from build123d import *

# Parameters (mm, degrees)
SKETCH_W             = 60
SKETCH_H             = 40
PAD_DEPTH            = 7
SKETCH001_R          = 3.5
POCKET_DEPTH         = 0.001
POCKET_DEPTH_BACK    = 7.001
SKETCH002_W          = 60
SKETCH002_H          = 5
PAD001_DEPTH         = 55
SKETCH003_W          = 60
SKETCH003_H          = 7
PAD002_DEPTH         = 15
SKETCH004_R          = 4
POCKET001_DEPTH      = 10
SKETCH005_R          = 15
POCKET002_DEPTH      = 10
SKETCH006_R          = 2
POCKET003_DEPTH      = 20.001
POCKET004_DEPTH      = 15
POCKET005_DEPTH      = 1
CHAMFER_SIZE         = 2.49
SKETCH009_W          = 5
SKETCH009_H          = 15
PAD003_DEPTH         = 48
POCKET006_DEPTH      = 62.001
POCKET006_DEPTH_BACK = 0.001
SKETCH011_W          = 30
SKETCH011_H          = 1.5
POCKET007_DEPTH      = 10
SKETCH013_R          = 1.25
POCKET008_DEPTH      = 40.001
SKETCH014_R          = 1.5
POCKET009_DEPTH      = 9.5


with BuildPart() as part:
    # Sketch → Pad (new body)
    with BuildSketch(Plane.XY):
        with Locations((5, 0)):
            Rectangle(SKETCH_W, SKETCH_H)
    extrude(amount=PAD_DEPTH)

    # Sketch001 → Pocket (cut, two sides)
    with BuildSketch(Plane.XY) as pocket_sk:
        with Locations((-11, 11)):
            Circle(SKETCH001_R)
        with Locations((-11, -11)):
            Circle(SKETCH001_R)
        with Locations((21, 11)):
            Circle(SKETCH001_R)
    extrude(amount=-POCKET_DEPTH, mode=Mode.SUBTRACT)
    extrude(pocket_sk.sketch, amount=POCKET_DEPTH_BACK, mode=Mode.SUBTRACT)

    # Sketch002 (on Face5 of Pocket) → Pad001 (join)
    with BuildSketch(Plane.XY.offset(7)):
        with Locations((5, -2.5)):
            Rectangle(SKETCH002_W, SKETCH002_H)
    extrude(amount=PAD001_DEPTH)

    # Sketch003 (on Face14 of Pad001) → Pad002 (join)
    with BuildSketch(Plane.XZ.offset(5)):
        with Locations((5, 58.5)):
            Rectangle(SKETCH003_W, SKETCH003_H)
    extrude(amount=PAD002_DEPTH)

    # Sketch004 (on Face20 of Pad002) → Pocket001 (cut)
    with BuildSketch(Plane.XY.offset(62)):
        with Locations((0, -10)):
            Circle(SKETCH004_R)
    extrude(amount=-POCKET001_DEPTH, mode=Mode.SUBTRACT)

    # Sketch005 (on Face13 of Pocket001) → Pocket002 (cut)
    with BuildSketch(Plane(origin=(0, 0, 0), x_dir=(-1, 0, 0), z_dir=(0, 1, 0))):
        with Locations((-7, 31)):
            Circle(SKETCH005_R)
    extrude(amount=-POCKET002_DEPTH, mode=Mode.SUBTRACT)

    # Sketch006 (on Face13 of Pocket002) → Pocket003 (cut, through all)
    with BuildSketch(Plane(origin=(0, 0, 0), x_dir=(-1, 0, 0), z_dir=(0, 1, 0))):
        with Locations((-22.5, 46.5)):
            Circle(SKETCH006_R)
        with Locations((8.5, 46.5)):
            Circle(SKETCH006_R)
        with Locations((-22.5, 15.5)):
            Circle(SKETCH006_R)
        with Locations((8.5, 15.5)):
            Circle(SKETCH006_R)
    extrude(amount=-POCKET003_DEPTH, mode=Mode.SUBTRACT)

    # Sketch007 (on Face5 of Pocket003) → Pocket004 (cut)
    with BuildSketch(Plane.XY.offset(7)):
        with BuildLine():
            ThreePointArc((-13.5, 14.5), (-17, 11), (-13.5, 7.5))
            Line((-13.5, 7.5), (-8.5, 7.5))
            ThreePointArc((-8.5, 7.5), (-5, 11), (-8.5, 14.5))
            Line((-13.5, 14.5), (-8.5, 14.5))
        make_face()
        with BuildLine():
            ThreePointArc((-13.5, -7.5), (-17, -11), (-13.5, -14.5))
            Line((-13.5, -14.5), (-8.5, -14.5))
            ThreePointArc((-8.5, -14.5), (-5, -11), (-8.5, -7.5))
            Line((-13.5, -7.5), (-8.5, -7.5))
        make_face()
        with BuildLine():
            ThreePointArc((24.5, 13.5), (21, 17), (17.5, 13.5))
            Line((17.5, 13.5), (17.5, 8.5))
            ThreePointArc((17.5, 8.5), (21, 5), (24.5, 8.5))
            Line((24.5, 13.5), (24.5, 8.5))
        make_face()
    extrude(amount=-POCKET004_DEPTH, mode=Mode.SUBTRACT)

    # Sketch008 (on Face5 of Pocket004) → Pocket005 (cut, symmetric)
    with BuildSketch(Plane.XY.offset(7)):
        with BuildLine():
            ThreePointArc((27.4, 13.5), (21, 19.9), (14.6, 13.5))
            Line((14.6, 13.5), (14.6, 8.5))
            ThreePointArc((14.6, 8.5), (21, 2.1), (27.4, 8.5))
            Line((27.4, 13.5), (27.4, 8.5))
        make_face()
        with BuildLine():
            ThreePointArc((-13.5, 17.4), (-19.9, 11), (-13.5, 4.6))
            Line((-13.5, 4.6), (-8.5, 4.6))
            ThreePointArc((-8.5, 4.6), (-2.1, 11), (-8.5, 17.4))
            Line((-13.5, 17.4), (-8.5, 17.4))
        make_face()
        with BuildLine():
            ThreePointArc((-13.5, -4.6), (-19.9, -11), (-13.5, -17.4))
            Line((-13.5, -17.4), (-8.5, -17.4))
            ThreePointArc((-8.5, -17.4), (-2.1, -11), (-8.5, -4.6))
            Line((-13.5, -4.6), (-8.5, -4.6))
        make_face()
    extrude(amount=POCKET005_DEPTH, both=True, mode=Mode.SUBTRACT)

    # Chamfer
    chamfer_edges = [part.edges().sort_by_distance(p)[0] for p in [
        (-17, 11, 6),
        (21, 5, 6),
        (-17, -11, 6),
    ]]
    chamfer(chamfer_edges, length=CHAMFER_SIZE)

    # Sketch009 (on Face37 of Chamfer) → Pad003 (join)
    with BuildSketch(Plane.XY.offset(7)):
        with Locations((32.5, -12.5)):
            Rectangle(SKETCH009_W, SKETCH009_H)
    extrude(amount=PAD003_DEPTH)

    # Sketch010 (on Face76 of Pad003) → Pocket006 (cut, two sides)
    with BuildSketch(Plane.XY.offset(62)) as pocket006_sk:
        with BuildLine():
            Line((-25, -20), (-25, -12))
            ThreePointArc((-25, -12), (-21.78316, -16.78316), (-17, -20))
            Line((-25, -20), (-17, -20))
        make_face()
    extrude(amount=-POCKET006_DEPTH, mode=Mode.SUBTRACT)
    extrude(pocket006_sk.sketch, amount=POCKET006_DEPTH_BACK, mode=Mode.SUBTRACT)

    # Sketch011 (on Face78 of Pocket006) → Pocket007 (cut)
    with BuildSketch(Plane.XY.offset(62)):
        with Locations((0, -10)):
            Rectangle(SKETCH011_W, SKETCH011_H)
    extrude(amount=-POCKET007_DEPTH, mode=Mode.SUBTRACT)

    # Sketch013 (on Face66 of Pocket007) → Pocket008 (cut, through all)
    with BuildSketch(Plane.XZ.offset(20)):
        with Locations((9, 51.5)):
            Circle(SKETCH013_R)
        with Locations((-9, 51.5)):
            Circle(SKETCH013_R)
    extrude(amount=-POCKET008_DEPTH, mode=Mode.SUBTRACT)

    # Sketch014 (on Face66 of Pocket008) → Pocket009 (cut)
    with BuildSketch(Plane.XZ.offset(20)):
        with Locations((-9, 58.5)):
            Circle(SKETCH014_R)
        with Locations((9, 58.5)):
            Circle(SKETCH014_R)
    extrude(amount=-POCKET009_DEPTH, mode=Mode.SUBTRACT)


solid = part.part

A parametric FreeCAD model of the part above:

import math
import FreeCAD as App
import Part
import Sketcher


def edges_at(feature, points):
    """Names of the edges that pass closest to the given points."""
    edges = feature.Shape.Edges
    near = lambda p: min(range(len(edges)), key=lambda i: edges[i].distToShape(Part.Vertex(*p))[0])
    return sorted({f"Edge{near(p) + 1}" for p in points})

doc = App.newDocument("Part")
body = doc.addObject("PartDesign::Body", "Body")

sketch1 = body.newObject("Sketcher::SketchObject", "Sketch")
sketch1.AttachmentSupport = (doc.getObject("XY_Plane"), [""])
sketch1.MapMode = "FlatFace"
sketch1.addGeometry([
    Part.LineSegment(App.Vector(-25, 20, 0), App.Vector(-25, -20, 0)),
    Part.LineSegment(App.Vector(-25, -20, 0), App.Vector(35, -20, 0)),
    Part.LineSegment(App.Vector(35, -20, 0), App.Vector(35, 20, 0)),
    Part.LineSegment(App.Vector(35, 20, 0), App.Vector(-25, 20, 0)),
], False)
sketch1.addConstraint([
    Sketcher.Constraint("Coincident", 0, 2, 1, 1),
    Sketcher.Constraint("Coincident", 1, 2, 2, 1),
    Sketcher.Constraint("Coincident", 2, 2, 3, 1),
    Sketcher.Constraint("Coincident", 3, 2, 0, 1),
    Sketcher.Constraint("Vertical", 0),
    Sketcher.Constraint("Horizontal", 1),
    Sketcher.Constraint("Vertical", 2),
    Sketcher.Constraint("Horizontal", 3),
    Sketcher.Constraint("DistanceX", 1, 1, 1, 2, 60.0),
    Sketcher.Constraint("DistanceY", 0, 2, 0, 1, 40.0),
    Sketcher.Constraint("DistanceX", 0, 2, -1, 1, 25.0),
    Sketcher.Constraint("DistanceY", 0, 2, -1, 1, 20.0),
])
pad1 = body.newObject("PartDesign::Pad", "Pad")
pad1.Profile = sketch1
pad1.Length = 7

sketch2 = body.newObject("Sketcher::SketchObject", "Sketch001")
sketch2.AttachmentSupport = (doc.getObject("XY_Plane"), [""])
sketch2.MapMode = "FlatFace"
sketch2.addGeometry([
    Part.Circle(App.Vector(-11, 11, 0), App.Vector(0, 0, 1), 3.5),
    Part.Circle(App.Vector(-11, -11, 0), App.Vector(0, 0, 1), 3.5),
    Part.Circle(App.Vector(21, 11, 0), App.Vector(0, 0, 1), 3.5),
], False)
sketch2.addConstraint([
    Sketcher.Constraint("Equal", 0, 1),
    Sketcher.Constraint("Equal", 1, 2),
    Sketcher.Constraint("Symmetric", 0, 3, 1, 3, -1),
    Sketcher.Constraint("Horizontal", 0, 3, 2, 3),
    Sketcher.Constraint("Diameter", 0, 7.0),
    Sketcher.Constraint("DistanceX", 0, 3, -1, 1, 11.0),
    Sketcher.Constraint("DistanceY", -1, 1, 0, 3, 11.0),
    Sketcher.Constraint("DistanceX", -1, 1, 2, 3, 21.0),
])
pocket1 = body.newObject("PartDesign::Pocket", "Pocket")
pocket1.Profile = sketch2
pocket1.Type = "ThroughAll"
pocket1.Midplane = True

sketch3 = body.newObject("Sketcher::SketchObject", "Sketch002")
sketch3.AttachmentSupport = (doc.getObject("XY_Plane"), [""])
sketch3.MapMode = "FlatFace"
sketch3.AttachmentOffset = App.Placement(App.Vector(0, 0, 7), App.Rotation())
sketch3.addGeometry([
    Part.LineSegment(App.Vector(-25, 0, 0), App.Vector(-25, -5, 0)),
    Part.LineSegment(App.Vector(-25, -5, 0), App.Vector(35, -5, 0)),
    Part.LineSegment(App.Vector(35, -5, 0), App.Vector(35, 0, 0)),
    Part.LineSegment(App.Vector(35, 0, 0), App.Vector(-25, 0, 0)),
], False)
sketch3.addConstraint([
    Sketcher.Constraint("Coincident", 0, 2, 1, 1),
    Sketcher.Constraint("Coincident", 1, 2, 2, 1),
    Sketcher.Constraint("Coincident", 2, 2, 3, 1),
    Sketcher.Constraint("Coincident", 3, 2, 0, 1),
    Sketcher.Constraint("Vertical", 0),
    Sketcher.Constraint("Horizontal", 1),
    Sketcher.Constraint("Vertical", 2),
    Sketcher.Constraint("Horizontal", 3),
    Sketcher.Constraint("PointOnObject", 2, 2, -1),
    Sketcher.Constraint("DistanceX", 1, 1, 1, 2, 60.0),
    Sketcher.Constraint("DistanceY", 0, 2, 0, 1, 5.0),
    Sketcher.Constraint("DistanceX", 0, 2, -1, 1, 25.0),
])
pad2 = body.newObject("PartDesign::Pad", "Pad001")
pad2.Profile = sketch3
pad2.Length = 55

sketch4 = body.newObject("Sketcher::SketchObject", "Sketch003")
sketch4.AttachmentSupport = (doc.getObject("XZ_Plane"), [""])
sketch4.MapMode = "FlatFace"
sketch4.AttachmentOffset = App.Placement(App.Vector(0, 0, 5), App.Rotation())
sketch4.addGeometry([
    Part.LineSegment(App.Vector(-25, 62, 0), App.Vector(-25, 55, 0)),
    Part.LineSegment(App.Vector(-25, 55, 0), App.Vector(35, 55, 0)),
    Part.LineSegment(App.Vector(35, 55, 0), App.Vector(35, 62, 0)),
    Part.LineSegment(App.Vector(35, 62, 0), App.Vector(-25, 62, 0)),
], False)
sketch4.addConstraint([
    Sketcher.Constraint("Coincident", 0, 2, 1, 1),
    Sketcher.Constraint("Coincident", 1, 2, 2, 1),
    Sketcher.Constraint("Coincident", 2, 2, 3, 1),
    Sketcher.Constraint("Coincident", 3, 2, 0, 1),
    Sketcher.Constraint("Vertical", 0),
    Sketcher.Constraint("Horizontal", 1),
    Sketcher.Constraint("Vertical", 2),
    Sketcher.Constraint("Horizontal", 3),
    Sketcher.Constraint("DistanceX", 1, 1, 1, 2, 60.0),
    Sketcher.Constraint("DistanceY", 0, 2, 0, 1, 7.0),
    Sketcher.Constraint("DistanceX", 0, 2, -1, 1, 25.0),
    Sketcher.Constraint("DistanceY", -1, 1, 0, 2, 55.0),
])
pad3 = body.newObject("PartDesign::Pad", "Pad002")
pad3.Profile = sketch4
pad3.Length = 15

sketch5 = body.newObject("Sketcher::SketchObject", "Sketch004")
sketch5.AttachmentSupport = (doc.getObject("XY_Plane"), [""])
sketch5.MapMode = "FlatFace"
sketch5.AttachmentOffset = App.Placement(App.Vector(0, 0, 62), App.Rotation())
sketch5.addGeometry(Part.Circle(App.Vector(0, -10, 0), App.Vector(0, 0, 1), 4), False)
sketch5.addConstraint([
    Sketcher.Constraint("PointOnObject", 0, 3, -2),
    Sketcher.Constraint("Diameter", 0, 8.0),
    Sketcher.Constraint("DistanceY", 0, 3, -1, 1, 10.0),
])
pocket2 = body.newObject("PartDesign::Pocket", "Pocket001")
pocket2.Profile = sketch5
pocket2.Length = 10

sketch6 = body.newObject("Sketcher::SketchObject", "Sketch005")
sketch6.AttachmentSupport = (doc.getObject("XZ_Plane"), [""])
sketch6.MapMode = "FlatFace"
sketch6.addGeometry(Part.Circle(App.Vector(7, 31, 0), App.Vector(0, 0, 1), 15), False)
sketch6.addConstraint([
    Sketcher.Constraint("Diameter", 0, 30.0),
    Sketcher.Constraint("DistanceX", -1, 1, 0, 3, 7.0),
    Sketcher.Constraint("DistanceY", -1, 1, 0, 3, 31.0),
])
pocket3 = body.newObject("PartDesign::Pocket", "Pocket002")
pocket3.Profile = sketch6
pocket3.Length = 10
pocket3.Reversed = True

sketch7 = body.newObject("Sketcher::SketchObject", "Sketch006")
sketch7.AttachmentSupport = (doc.getObject("XZ_Plane"), [""])
sketch7.MapMode = "FlatFace"
sketch7.addGeometry([
    Part.Circle(App.Vector(22.5, 46.5, 0), App.Vector(0, 0, 1), 2),
    Part.Circle(App.Vector(-8.5, 46.5, 0), App.Vector(0, 0, 1), 2),
    Part.Circle(App.Vector(22.5, 15.5, 0), App.Vector(0, 0, 1), 2),
    Part.Circle(App.Vector(-8.5, 15.5, 0), App.Vector(0, 0, 1), 2),
], False)
sketch7.addConstraint([
    Sketcher.Constraint("Equal", 0, 1),
    Sketcher.Constraint("Equal", 1, 2),
    Sketcher.Constraint("Equal", 2, 3),
    Sketcher.Constraint("Horizontal", 0, 3, 1, 3),
    Sketcher.Constraint("Horizontal", 2, 3, 3, 3),
    Sketcher.Constraint("Vertical", 0, 3, 2, 3),
    Sketcher.Constraint("Vertical", 1, 3, 3, 3),
    Sketcher.Constraint("Diameter", 0, 4.0),
    Sketcher.Constraint("DistanceX", 1, 3, 0, 3, 31.0),
    Sketcher.Constraint("DistanceY", 2, 3, 0, 3, 31.0),
    Sketcher.Constraint("DistanceX", -1, 1, 0, 3, 22.5),
    Sketcher.Constraint("DistanceY", -1, 1, 0, 3, 46.5),
])
pocket4 = body.newObject("PartDesign::Pocket", "Pocket003")
pocket4.Profile = sketch7
pocket4.Type = "ThroughAll"
pocket4.Reversed = True

sketch8 = body.newObject("Sketcher::SketchObject", "Sketch007")
sketch8.AttachmentSupport = (doc.getObject("XY_Plane"), [""])
sketch8.MapMode = "FlatFace"
sketch8.AttachmentOffset = App.Placement(App.Vector(0, 0, 7), App.Rotation())
sketch8.addGeometry([
    Part.ArcOfCircle(Part.Circle(App.Vector(-13.5, 11, 0), App.Vector(0, 0, 1), 3.5), math.radians(90), math.radians(270)),
    Part.LineSegment(App.Vector(-13.5, 7.5, 0), App.Vector(-8.5, 7.5, 0)),
    Part.ArcOfCircle(Part.Circle(App.Vector(-8.5, 11, 0), App.Vector(0, 0, 1), 3.5), math.radians(-90), math.radians(90)),
    Part.LineSegment(App.Vector(-8.5, 14.5, 0), App.Vector(-13.5, 14.5, 0)),
    Part.ArcOfCircle(Part.Circle(App.Vector(-13.5, -11, 0), App.Vector(0, 0, 1), 3.5), math.radians(90), math.radians(270)),
    Part.LineSegment(App.Vector(-13.5, -14.5, 0), App.Vector(-8.5, -14.5, 0)),
    Part.ArcOfCircle(Part.Circle(App.Vector(-8.5, -11, 0), App.Vector(0, 0, 1), 3.5), math.radians(-90), math.radians(90)),
    Part.LineSegment(App.Vector(-8.5, -7.5, 0), App.Vector(-13.5, -7.5, 0)),
    Part.ArcOfCircle(Part.Circle(App.Vector(21, 13.5, 0), App.Vector(0, 0, 1), 3.5), math.radians(0), math.radians(180)),
    Part.LineSegment(App.Vector(17.5, 13.5, 0), App.Vector(17.5, 8.5, 0)),
    Part.ArcOfCircle(Part.Circle(App.Vector(21, 8.5, 0), App.Vector(0, 0, 1), 3.5), math.radians(180), math.radians(360)),
    Part.LineSegment(App.Vector(24.5, 8.5, 0), App.Vector(24.5, 13.5, 0)),
], False)
sketch8.addConstraint([
    Sketcher.Constraint("Tangent", 0, 2, 1, 1),
    Sketcher.Constraint("Tangent", 1, 2, 2, 1),
    Sketcher.Constraint("Tangent", 2, 2, 3, 1),
    Sketcher.Constraint("Tangent", 3, 2, 0, 1),
    Sketcher.Constraint("Tangent", 4, 2, 5, 1),
    Sketcher.Constraint("Tangent", 5, 2, 6, 1),
    Sketcher.Constraint("Tangent", 6, 2, 7, 1),
    Sketcher.Constraint("Tangent", 7, 2, 4, 1),
    Sketcher.Constraint("Tangent", 8, 2, 9, 1),
    Sketcher.Constraint("Tangent", 9, 2, 10, 1),
    Sketcher.Constraint("Tangent", 10, 2, 11, 1),
    Sketcher.Constraint("Tangent", 11, 2, 8, 1),
    Sketcher.Constraint("Horizontal", 1),
    Sketcher.Constraint("Horizontal", 3),
    Sketcher.Constraint("Horizontal", 5),
    Sketcher.Constraint("Horizontal", 7),
    Sketcher.Constraint("Vertical", 9),
    Sketcher.Constraint("Vertical", 11),
    Sketcher.Constraint("Equal", 2, 4),
    Sketcher.Constraint("Equal", 6, 8),
    Sketcher.Constraint("Symmetric", 0, 3, 4, 3, -1),
    Sketcher.Constraint("Vertical", 2, 3, 6, 3),
    Sketcher.Constraint("Equal", 7, 9),
    Sketcher.Constraint("Radius", 0, 3.5),
    Sketcher.Constraint("DistanceX", 1, 1, 1, 2, 5.0),
    Sketcher.Constraint("DistanceY", -1, 1, 0, 3, 11.0),
    Sketcher.Constraint("DistanceX", -1, 1, 8, 3, 21.0),
    Sketcher.Constraint("DistanceY", 0, 2, 10, 3, 1.0),
    Sketcher.Constraint("DistanceX", 2, 2, 8, 2, 26.0),
])
pocket5 = body.newObject("PartDesign::Pocket", "Pocket004")
pocket5.Profile = sketch8
pocket5.Length = 15

sketch9 = body.newObject("Sketcher::SketchObject", "Sketch008")
sketch9.AttachmentSupport = (doc.getObject("XY_Plane"), [""])
sketch9.MapMode = "FlatFace"
sketch9.AttachmentOffset = App.Placement(App.Vector(0, 0, 7), App.Rotation())
sketch9.addGeometry([
    Part.ArcOfCircle(Part.Circle(App.Vector(21, 14, 0), App.Vector(0, 0, 1), 6), math.radians(0), math.radians(180)),
    Part.LineSegment(App.Vector(15, 14, 0), App.Vector(15, 8, 0)),
    Part.ArcOfCircle(Part.Circle(App.Vector(21, 8, 0), App.Vector(0, 0, 1), 6), math.radians(180), math.radians(360)),
    Part.LineSegment(App.Vector(27, 8, 0), App.Vector(27, 14, 0)),
    Part.ArcOfCircle(Part.Circle(App.Vector(-14, 11, 0), App.Vector(0, 0, 1), 6), math.radians(90), math.radians(270)),
    Part.LineSegment(App.Vector(-14, 5, 0), App.Vector(-8, 5, 0)),
    Part.ArcOfCircle(Part.Circle(App.Vector(-8, 11, 0), App.Vector(0, 0, 1), 6), math.radians(-90), math.radians(90)),
    Part.LineSegment(App.Vector(-8, 17, 0), App.Vector(-14, 17, 0)),
    Part.ArcOfCircle(Part.Circle(App.Vector(-14, -11, 0), App.Vector(0, 0, 1), 6), math.radians(90), math.radians(270)),
    Part.LineSegment(App.Vector(-14, -17, 0), App.Vector(-8, -17, 0)),
    Part.ArcOfCircle(Part.Circle(App.Vector(-8, -11, 0), App.Vector(0, 0, 1), 6), math.radians(-90), math.radians(90)),
    Part.LineSegment(App.Vector(-8, -5, 0), App.Vector(-14, -5, 0)),
], False)
sketch9.addConstraint([
    Sketcher.Constraint("Tangent", 0, 2, 1, 1),
    Sketcher.Constraint("Tangent", 1, 2, 2, 1),
    Sketcher.Constraint("Tangent", 2, 2, 3, 1),
    Sketcher.Constraint("Tangent", 3, 2, 0, 1),
    Sketcher.Constraint("Tangent", 4, 2, 5, 1),
    Sketcher.Constraint("Tangent", 5, 2, 6, 1),
    Sketcher.Constraint("Tangent", 6, 2, 7, 1),
    Sketcher.Constraint("Tangent", 7, 2, 4, 1),
    Sketcher.Constraint("Tangent", 8, 2, 9, 1),
    Sketcher.Constraint("Tangent", 9, 2, 10, 1),
    Sketcher.Constraint("Tangent", 10, 2, 11, 1),
    Sketcher.Constraint("Tangent", 11, 2, 8, 1),
    Sketcher.Constraint("Vertical", 1),
    Sketcher.Constraint("Vertical", 3),
    Sketcher.Constraint("Horizontal", 5),
    Sketcher.Constraint("Horizontal", 7),
    Sketcher.Constraint("Horizontal", 9),
    Sketcher.Constraint("Horizontal", 11),
    Sketcher.Constraint("Equal", 2, 4),
    Sketcher.Constraint("Equal", 6, 8),
    Sketcher.Constraint("Symmetric", 4, 3, 8, 3, -1),
    Sketcher.Constraint("Vertical", 6, 3, 10, 3),
    Sketcher.Constraint("Equal", 11, 1),
    Sketcher.Constraint("Radius", 0, 6.4),
    Sketcher.Constraint("DistanceX", 5, 1, 5, 2, 5.0),
    Sketcher.Constraint("DistanceX", -1, 1, 0, 3, 21.0),
    Sketcher.Constraint("DistanceY", -1, 1, 4, 3, 11.0),
    Sketcher.Constraint("DistanceY", -1, 1, 0, 3, 13.5),
    Sketcher.Constraint("DistanceX", 4, 3, -1, 1, 13.5),
])
pocket6 = body.newObject("PartDesign::Pocket", "Pocket005")
pocket6.Profile = sketch9
pocket6.Length = 2
pocket6.Midplane = True
doc.recompute()

chamfer = body.newObject("PartDesign::Chamfer", "Chamfer")
chamfer.Base = (pocket6, edges_at(pocket6, [(-17, 11, 6), (21, 5, 6), (-17, -11, 6)]))
chamfer.Size = 2.49

sketch10 = body.newObject("Sketcher::SketchObject", "Sketch009")
sketch10.AttachmentSupport = (doc.getObject("XY_Plane"), [""])
sketch10.MapMode = "FlatFace"
sketch10.AttachmentOffset = App.Placement(App.Vector(0, 0, 7), App.Rotation())
sketch10.addGeometry([
    Part.LineSegment(App.Vector(30, -5, 0), App.Vector(30, -20, 0)),
    Part.LineSegment(App.Vector(30, -20, 0), App.Vector(35, -20, 0)),
    Part.LineSegment(App.Vector(35, -20, 0), App.Vector(35, -5, 0)),
    Part.LineSegment(App.Vector(35, -5, 0), App.Vector(30, -5, 0)),
], False)
sketch10.addConstraint([
    Sketcher.Constraint("Coincident", 0, 2, 1, 1),
    Sketcher.Constraint("Coincident", 1, 2, 2, 1),
    Sketcher.Constraint("Coincident", 2, 2, 3, 1),
    Sketcher.Constraint("Coincident", 3, 2, 0, 1),
    Sketcher.Constraint("Vertical", 0),
    Sketcher.Constraint("Horizontal", 1),
    Sketcher.Constraint("Vertical", 2),
    Sketcher.Constraint("Horizontal", 3),
    Sketcher.Constraint("DistanceX", 1, 1, 1, 2, 5.0),
    Sketcher.Constraint("DistanceY", 0, 2, 0, 1, 15.0),
    Sketcher.Constraint("DistanceX", -1, 1, 0, 2, 30.0),
    Sketcher.Constraint("DistanceY", 0, 2, -1, 1, 20.0),
])
pad4 = body.newObject("PartDesign::Pad", "Pad003")
pad4.Profile = sketch10
pad4.Length = 48

sketch11 = body.newObject("Sketcher::SketchObject", "Sketch010")
sketch11.AttachmentSupport = (doc.getObject("XY_Plane"), [""])
sketch11.MapMode = "FlatFace"
sketch11.AttachmentOffset = App.Placement(App.Vector(0, 0, 62), App.Rotation())
sketch11.addGeometry([
    Part.LineSegment(App.Vector(-25, -12, 0), App.Vector(-25, -20, 0)),
    Part.LineSegment(App.Vector(-25, -20, 0), App.Vector(-17, -20, 0)),
    Part.ArcOfCircle(Part.Circle(App.Vector(-11, -6, 0), App.Vector(0, 0, 1), 15), math.radians(-157), math.radians(-113)),
], False)
sketch11.addConstraint([
    Sketcher.Constraint("Coincident", 0, 2, 1, 1),
    Sketcher.Constraint("Coincident", 1, 2, 2, 2),
    Sketcher.Constraint("Coincident", 2, 1, 0, 1),
    Sketcher.Constraint("Vertical", 0),
    Sketcher.Constraint("Horizontal", 1),
    Sketcher.Constraint("Equal", 1, 0),
    Sketcher.Constraint("DistanceX", 1, 1, 1, 2, 8.0),
    Sketcher.Constraint("DistanceX", 0, 2, -1, 1, 25.0),
    Sketcher.Constraint("DistanceY", 0, 2, -1, 1, 20.0),
    Sketcher.Constraint("Radius", 2, 15.000006),
])
pocket7 = body.newObject("PartDesign::Pocket", "Pocket006")
pocket7.Profile = sketch11
pocket7.Type = "ThroughAll"
pocket7.Midplane = True

sketch12 = body.newObject("Sketcher::SketchObject", "Sketch011")
sketch12.AttachmentSupport = (doc.getObject("XY_Plane"), [""])
sketch12.MapMode = "FlatFace"
sketch12.AttachmentOffset = App.Placement(App.Vector(0, 0, 62), App.Rotation())
sketch12.addGeometry([
    Part.LineSegment(App.Vector(-15, -9.2, 0), App.Vector(-15, -10.8, 0)),
    Part.LineSegment(App.Vector(-15, -10.8, 0), App.Vector(15, -10.8, 0)),
    Part.LineSegment(App.Vector(15, -10.8, 0), App.Vector(15, -9.2, 0)),
    Part.LineSegment(App.Vector(15, -9.2, 0), App.Vector(-15, -9.2, 0)),
], False)
sketch12.addConstraint([
    Sketcher.Constraint("Coincident", 0, 2, 1, 1),
    Sketcher.Constraint("Coincident", 1, 2, 2, 1),
    Sketcher.Constraint("Coincident", 2, 2, 3, 1),
    Sketcher.Constraint("Coincident", 3, 2, 0, 1),
    Sketcher.Constraint("Vertical", 0),
    Sketcher.Constraint("Horizontal", 1),
    Sketcher.Constraint("Vertical", 2),
    Sketcher.Constraint("Horizontal", 3),
    Sketcher.Constraint("DistanceX", 1, 1, 1, 2, 30.0),
    Sketcher.Constraint("DistanceY", 0, 2, 0, 1, 1.5),
    Sketcher.Constraint("DistanceX", 0, 2, -1, 1, 15.0),
    Sketcher.Constraint("DistanceY", 0, 2, -1, 1, 10.75),
])
pocket8 = body.newObject("PartDesign::Pocket", "Pocket007")
pocket8.Profile = sketch12
pocket8.Length = 10

sketch13 = body.newObject("Sketcher::SketchObject", "Sketch012")
sketch13.AttachmentSupport = (doc.getObject("XZ_Plane"), [""])
sketch13.MapMode = "FlatFace"
sketch13.AttachmentOffset = App.Placement(App.Vector(0, 0, 20), App.Rotation())
sketch13.addGeometry([
    Part.Circle(App.Vector(9, 51.5, 0), App.Vector(0, 0, 1), 1.2),
    Part.Circle(App.Vector(-9, 51.5, 0), App.Vector(0, 0, 1), 1.2),
], False)
sketch13.addConstraint([
    Sketcher.Constraint("Equal", 0, 1),
    Sketcher.Constraint("Symmetric", 0, 3, 1, 3, -2),
    Sketcher.Constraint("Diameter", 0, 2.5),
    Sketcher.Constraint("DistanceX", -1, 1, 0, 3, 9.0),
    Sketcher.Constraint("DistanceY", -1, 1, 0, 3, 51.5),
])
pocket9 = body.newObject("PartDesign::Pocket", "Pocket008")
pocket9.Profile = sketch13
pocket9.Type = "ThroughAll"

sketch14 = body.newObject("Sketcher::SketchObject", "Sketch013")
sketch14.AttachmentSupport = (doc.getObject("XZ_Plane"), [""])
sketch14.MapMode = "FlatFace"
sketch14.AttachmentOffset = App.Placement(App.Vector(0, 0, 20), App.Rotation())
sketch14.addGeometry([
    Part.Circle(App.Vector(-9, 58.5, 0), App.Vector(0, 0, 1), 1.5),
    Part.Circle(App.Vector(9, 58.5, 0), App.Vector(0, 0, 1), 1.5),
], False)
sketch14.addConstraint([
    Sketcher.Constraint("Equal", 0, 1),
    Sketcher.Constraint("Symmetric", 0, 3, 1, 3, -2),
    Sketcher.Constraint("Diameter", 0, 3.0),
    Sketcher.Constraint("DistanceX", 0, 3, -1, 1, 9.0),
    Sketcher.Constraint("DistanceY", -1, 1, 0, 3, 58.5),
])
pocket10 = body.newObject("PartDesign::Pocket", "Pocket009")
pocket10.Profile = sketch14
pocket10.Length = 9.5

doc.recompute()
